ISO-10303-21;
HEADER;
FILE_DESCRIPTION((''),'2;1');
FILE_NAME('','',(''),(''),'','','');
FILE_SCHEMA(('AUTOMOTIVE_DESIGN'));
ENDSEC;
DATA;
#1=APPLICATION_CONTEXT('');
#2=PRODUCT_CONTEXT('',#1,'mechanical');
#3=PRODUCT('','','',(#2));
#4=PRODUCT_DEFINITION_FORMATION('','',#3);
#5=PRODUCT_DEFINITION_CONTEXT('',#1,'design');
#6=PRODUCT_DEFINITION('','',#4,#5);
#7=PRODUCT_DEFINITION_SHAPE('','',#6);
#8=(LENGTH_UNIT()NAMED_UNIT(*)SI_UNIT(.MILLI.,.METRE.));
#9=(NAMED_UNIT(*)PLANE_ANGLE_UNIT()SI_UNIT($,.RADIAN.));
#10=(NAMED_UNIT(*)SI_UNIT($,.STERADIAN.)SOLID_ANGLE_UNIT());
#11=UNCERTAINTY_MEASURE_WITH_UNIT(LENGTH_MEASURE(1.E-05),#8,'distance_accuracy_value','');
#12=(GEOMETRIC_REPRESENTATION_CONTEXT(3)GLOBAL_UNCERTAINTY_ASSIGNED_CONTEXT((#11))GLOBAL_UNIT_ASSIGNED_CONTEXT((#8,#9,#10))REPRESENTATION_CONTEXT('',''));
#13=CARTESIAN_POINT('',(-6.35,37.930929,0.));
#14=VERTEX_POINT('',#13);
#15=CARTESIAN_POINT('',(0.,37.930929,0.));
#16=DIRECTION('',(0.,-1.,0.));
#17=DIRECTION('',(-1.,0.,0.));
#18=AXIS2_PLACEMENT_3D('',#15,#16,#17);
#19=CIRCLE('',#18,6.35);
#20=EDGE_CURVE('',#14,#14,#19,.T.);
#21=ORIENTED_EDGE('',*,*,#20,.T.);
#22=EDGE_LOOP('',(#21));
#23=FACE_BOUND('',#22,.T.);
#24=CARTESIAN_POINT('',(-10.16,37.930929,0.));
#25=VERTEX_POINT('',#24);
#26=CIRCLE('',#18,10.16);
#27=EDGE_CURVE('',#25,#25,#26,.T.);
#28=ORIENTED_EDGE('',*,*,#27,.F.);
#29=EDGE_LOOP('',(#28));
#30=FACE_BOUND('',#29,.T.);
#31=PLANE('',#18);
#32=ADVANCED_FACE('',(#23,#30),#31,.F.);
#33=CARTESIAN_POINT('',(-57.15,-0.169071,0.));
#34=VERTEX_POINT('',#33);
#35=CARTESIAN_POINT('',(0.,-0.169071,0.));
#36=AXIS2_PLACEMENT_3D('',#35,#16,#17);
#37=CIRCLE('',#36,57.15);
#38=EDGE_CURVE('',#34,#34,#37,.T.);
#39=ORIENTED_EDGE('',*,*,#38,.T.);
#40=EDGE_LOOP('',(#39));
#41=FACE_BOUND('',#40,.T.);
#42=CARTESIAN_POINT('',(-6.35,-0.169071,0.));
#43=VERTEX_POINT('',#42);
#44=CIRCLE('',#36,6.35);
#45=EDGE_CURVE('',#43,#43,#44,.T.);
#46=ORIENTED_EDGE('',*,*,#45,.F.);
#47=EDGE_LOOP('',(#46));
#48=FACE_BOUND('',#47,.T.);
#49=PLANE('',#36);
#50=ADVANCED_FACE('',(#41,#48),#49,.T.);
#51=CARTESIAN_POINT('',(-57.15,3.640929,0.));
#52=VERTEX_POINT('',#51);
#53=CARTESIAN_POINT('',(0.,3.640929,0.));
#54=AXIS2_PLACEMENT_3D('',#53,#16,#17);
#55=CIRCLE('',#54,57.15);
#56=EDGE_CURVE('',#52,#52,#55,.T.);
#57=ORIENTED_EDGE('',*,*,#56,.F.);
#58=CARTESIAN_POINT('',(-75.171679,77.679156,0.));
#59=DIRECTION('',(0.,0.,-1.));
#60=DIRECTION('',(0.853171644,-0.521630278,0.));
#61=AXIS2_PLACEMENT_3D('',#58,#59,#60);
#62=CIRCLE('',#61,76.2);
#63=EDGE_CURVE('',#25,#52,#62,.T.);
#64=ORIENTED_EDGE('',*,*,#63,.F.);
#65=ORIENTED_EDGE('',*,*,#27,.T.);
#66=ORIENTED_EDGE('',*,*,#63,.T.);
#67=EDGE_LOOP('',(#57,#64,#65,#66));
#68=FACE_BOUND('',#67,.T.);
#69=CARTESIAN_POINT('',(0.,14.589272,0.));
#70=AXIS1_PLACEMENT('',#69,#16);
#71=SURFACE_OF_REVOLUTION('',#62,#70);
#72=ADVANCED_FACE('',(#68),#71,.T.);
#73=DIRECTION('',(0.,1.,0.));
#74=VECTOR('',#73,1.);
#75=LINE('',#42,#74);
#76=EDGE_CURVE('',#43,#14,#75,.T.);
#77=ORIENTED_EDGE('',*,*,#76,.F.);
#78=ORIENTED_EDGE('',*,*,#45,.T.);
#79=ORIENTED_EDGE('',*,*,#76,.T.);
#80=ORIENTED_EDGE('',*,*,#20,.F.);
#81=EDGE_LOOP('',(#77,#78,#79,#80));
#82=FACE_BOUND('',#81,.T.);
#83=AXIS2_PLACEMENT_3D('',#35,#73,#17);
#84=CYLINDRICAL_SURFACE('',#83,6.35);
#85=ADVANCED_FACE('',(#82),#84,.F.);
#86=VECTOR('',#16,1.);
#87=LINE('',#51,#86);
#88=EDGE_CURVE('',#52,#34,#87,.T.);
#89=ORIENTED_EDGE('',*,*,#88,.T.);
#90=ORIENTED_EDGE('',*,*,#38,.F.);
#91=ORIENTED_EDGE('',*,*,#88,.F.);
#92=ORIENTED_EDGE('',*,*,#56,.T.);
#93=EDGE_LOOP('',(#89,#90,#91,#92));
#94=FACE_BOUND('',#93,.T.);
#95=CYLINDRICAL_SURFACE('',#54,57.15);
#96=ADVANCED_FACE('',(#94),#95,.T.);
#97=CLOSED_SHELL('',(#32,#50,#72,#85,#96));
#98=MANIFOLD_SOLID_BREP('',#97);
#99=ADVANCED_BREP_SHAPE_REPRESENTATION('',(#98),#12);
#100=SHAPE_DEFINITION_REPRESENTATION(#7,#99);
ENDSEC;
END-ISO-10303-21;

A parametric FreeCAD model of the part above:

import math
import FreeCAD as App
import Part
import Sketcher
Q = App.Units.Quantity

doc = App.newDocument("Part")
body = doc.addObject("PartDesign::Body", "Body")

sketch1 = body.newObject("Sketcher::SketchObject", "Sketch")
sketch1.AttachmentSupport = (doc.getObject("XY_Plane"), [""])
sketch1.MapMode = "FlatFace"
sketch1.addGeometry([
    Part.ArcOfCircle(Part.Circle(App.Vector(-75.2, 77.7, 0), App.Vector(0, 0, 1), 76.2), math.radians(-76), math.radians(-31)),
    Part.LineSegment(App.Vector(-57.1, 3.6, 0), App.Vector(-57.1, -0.2, 0)),
    Part.LineSegment(App.Vector(-57.1, -0.2, 0), App.Vector(-6.3, -0.2, 0)),
    Part.LineSegment(App.Vector(-6.3, -0.2, 0), App.Vector(-6.3, 37.9, 0)),
    Part.LineSegment(App.Vector(-6.3, 37.9, 0), App.Vector(-10.2, 37.9, 0)),
], False)
sketch1.addConstraint([
    Sketcher.Constraint("Coincident", 0, 1, 1, 1),
    Sketcher.Constraint("Coincident", 1, 2, 2, 1),
    Sketcher.Constraint("Coincident", 2, 2, 3, 1),
    Sketcher.Constraint("Coincident", 3, 2, 4, 1),
    Sketcher.Constraint("Coincident", 4, 2, 0, 2),
    Sketcher.Constraint("Vertical", 1),
    Sketcher.Constraint("Horizontal", 2),
    Sketcher.Constraint("Vertical", 3),
    Sketcher.Constraint("Horizontal", 4),
    Sketcher.Constraint("Equal", 4, 1),
    Sketcher.Constraint("Radius", 0, Q("3 in")),
    Sketcher.Constraint("DistanceX", 2, 1, 2, 2, Q("2 in")),
    Sketcher.Constraint("DistanceY", 3, 1, 3, 2, Q("1.5 in")),
    Sketcher.Constraint("DistanceX", 4, 2, 4, 1, Q("0.15 in")),
    Sketcher.Constraint("DistanceX", 4, 2, -1, 1, Q("0.4 in")),
    Sketcher.Constraint("DistanceY", -1, 1, 0, 1, 3.640929),
])
revolution = body.newObject("PartDesign::Revolution", "Revolution")
revolution.Profile = sketch1
revolution.ReferenceAxis = (sketch1, ["V_Axis"])
revolution.Angle = 360

doc.recompute()
